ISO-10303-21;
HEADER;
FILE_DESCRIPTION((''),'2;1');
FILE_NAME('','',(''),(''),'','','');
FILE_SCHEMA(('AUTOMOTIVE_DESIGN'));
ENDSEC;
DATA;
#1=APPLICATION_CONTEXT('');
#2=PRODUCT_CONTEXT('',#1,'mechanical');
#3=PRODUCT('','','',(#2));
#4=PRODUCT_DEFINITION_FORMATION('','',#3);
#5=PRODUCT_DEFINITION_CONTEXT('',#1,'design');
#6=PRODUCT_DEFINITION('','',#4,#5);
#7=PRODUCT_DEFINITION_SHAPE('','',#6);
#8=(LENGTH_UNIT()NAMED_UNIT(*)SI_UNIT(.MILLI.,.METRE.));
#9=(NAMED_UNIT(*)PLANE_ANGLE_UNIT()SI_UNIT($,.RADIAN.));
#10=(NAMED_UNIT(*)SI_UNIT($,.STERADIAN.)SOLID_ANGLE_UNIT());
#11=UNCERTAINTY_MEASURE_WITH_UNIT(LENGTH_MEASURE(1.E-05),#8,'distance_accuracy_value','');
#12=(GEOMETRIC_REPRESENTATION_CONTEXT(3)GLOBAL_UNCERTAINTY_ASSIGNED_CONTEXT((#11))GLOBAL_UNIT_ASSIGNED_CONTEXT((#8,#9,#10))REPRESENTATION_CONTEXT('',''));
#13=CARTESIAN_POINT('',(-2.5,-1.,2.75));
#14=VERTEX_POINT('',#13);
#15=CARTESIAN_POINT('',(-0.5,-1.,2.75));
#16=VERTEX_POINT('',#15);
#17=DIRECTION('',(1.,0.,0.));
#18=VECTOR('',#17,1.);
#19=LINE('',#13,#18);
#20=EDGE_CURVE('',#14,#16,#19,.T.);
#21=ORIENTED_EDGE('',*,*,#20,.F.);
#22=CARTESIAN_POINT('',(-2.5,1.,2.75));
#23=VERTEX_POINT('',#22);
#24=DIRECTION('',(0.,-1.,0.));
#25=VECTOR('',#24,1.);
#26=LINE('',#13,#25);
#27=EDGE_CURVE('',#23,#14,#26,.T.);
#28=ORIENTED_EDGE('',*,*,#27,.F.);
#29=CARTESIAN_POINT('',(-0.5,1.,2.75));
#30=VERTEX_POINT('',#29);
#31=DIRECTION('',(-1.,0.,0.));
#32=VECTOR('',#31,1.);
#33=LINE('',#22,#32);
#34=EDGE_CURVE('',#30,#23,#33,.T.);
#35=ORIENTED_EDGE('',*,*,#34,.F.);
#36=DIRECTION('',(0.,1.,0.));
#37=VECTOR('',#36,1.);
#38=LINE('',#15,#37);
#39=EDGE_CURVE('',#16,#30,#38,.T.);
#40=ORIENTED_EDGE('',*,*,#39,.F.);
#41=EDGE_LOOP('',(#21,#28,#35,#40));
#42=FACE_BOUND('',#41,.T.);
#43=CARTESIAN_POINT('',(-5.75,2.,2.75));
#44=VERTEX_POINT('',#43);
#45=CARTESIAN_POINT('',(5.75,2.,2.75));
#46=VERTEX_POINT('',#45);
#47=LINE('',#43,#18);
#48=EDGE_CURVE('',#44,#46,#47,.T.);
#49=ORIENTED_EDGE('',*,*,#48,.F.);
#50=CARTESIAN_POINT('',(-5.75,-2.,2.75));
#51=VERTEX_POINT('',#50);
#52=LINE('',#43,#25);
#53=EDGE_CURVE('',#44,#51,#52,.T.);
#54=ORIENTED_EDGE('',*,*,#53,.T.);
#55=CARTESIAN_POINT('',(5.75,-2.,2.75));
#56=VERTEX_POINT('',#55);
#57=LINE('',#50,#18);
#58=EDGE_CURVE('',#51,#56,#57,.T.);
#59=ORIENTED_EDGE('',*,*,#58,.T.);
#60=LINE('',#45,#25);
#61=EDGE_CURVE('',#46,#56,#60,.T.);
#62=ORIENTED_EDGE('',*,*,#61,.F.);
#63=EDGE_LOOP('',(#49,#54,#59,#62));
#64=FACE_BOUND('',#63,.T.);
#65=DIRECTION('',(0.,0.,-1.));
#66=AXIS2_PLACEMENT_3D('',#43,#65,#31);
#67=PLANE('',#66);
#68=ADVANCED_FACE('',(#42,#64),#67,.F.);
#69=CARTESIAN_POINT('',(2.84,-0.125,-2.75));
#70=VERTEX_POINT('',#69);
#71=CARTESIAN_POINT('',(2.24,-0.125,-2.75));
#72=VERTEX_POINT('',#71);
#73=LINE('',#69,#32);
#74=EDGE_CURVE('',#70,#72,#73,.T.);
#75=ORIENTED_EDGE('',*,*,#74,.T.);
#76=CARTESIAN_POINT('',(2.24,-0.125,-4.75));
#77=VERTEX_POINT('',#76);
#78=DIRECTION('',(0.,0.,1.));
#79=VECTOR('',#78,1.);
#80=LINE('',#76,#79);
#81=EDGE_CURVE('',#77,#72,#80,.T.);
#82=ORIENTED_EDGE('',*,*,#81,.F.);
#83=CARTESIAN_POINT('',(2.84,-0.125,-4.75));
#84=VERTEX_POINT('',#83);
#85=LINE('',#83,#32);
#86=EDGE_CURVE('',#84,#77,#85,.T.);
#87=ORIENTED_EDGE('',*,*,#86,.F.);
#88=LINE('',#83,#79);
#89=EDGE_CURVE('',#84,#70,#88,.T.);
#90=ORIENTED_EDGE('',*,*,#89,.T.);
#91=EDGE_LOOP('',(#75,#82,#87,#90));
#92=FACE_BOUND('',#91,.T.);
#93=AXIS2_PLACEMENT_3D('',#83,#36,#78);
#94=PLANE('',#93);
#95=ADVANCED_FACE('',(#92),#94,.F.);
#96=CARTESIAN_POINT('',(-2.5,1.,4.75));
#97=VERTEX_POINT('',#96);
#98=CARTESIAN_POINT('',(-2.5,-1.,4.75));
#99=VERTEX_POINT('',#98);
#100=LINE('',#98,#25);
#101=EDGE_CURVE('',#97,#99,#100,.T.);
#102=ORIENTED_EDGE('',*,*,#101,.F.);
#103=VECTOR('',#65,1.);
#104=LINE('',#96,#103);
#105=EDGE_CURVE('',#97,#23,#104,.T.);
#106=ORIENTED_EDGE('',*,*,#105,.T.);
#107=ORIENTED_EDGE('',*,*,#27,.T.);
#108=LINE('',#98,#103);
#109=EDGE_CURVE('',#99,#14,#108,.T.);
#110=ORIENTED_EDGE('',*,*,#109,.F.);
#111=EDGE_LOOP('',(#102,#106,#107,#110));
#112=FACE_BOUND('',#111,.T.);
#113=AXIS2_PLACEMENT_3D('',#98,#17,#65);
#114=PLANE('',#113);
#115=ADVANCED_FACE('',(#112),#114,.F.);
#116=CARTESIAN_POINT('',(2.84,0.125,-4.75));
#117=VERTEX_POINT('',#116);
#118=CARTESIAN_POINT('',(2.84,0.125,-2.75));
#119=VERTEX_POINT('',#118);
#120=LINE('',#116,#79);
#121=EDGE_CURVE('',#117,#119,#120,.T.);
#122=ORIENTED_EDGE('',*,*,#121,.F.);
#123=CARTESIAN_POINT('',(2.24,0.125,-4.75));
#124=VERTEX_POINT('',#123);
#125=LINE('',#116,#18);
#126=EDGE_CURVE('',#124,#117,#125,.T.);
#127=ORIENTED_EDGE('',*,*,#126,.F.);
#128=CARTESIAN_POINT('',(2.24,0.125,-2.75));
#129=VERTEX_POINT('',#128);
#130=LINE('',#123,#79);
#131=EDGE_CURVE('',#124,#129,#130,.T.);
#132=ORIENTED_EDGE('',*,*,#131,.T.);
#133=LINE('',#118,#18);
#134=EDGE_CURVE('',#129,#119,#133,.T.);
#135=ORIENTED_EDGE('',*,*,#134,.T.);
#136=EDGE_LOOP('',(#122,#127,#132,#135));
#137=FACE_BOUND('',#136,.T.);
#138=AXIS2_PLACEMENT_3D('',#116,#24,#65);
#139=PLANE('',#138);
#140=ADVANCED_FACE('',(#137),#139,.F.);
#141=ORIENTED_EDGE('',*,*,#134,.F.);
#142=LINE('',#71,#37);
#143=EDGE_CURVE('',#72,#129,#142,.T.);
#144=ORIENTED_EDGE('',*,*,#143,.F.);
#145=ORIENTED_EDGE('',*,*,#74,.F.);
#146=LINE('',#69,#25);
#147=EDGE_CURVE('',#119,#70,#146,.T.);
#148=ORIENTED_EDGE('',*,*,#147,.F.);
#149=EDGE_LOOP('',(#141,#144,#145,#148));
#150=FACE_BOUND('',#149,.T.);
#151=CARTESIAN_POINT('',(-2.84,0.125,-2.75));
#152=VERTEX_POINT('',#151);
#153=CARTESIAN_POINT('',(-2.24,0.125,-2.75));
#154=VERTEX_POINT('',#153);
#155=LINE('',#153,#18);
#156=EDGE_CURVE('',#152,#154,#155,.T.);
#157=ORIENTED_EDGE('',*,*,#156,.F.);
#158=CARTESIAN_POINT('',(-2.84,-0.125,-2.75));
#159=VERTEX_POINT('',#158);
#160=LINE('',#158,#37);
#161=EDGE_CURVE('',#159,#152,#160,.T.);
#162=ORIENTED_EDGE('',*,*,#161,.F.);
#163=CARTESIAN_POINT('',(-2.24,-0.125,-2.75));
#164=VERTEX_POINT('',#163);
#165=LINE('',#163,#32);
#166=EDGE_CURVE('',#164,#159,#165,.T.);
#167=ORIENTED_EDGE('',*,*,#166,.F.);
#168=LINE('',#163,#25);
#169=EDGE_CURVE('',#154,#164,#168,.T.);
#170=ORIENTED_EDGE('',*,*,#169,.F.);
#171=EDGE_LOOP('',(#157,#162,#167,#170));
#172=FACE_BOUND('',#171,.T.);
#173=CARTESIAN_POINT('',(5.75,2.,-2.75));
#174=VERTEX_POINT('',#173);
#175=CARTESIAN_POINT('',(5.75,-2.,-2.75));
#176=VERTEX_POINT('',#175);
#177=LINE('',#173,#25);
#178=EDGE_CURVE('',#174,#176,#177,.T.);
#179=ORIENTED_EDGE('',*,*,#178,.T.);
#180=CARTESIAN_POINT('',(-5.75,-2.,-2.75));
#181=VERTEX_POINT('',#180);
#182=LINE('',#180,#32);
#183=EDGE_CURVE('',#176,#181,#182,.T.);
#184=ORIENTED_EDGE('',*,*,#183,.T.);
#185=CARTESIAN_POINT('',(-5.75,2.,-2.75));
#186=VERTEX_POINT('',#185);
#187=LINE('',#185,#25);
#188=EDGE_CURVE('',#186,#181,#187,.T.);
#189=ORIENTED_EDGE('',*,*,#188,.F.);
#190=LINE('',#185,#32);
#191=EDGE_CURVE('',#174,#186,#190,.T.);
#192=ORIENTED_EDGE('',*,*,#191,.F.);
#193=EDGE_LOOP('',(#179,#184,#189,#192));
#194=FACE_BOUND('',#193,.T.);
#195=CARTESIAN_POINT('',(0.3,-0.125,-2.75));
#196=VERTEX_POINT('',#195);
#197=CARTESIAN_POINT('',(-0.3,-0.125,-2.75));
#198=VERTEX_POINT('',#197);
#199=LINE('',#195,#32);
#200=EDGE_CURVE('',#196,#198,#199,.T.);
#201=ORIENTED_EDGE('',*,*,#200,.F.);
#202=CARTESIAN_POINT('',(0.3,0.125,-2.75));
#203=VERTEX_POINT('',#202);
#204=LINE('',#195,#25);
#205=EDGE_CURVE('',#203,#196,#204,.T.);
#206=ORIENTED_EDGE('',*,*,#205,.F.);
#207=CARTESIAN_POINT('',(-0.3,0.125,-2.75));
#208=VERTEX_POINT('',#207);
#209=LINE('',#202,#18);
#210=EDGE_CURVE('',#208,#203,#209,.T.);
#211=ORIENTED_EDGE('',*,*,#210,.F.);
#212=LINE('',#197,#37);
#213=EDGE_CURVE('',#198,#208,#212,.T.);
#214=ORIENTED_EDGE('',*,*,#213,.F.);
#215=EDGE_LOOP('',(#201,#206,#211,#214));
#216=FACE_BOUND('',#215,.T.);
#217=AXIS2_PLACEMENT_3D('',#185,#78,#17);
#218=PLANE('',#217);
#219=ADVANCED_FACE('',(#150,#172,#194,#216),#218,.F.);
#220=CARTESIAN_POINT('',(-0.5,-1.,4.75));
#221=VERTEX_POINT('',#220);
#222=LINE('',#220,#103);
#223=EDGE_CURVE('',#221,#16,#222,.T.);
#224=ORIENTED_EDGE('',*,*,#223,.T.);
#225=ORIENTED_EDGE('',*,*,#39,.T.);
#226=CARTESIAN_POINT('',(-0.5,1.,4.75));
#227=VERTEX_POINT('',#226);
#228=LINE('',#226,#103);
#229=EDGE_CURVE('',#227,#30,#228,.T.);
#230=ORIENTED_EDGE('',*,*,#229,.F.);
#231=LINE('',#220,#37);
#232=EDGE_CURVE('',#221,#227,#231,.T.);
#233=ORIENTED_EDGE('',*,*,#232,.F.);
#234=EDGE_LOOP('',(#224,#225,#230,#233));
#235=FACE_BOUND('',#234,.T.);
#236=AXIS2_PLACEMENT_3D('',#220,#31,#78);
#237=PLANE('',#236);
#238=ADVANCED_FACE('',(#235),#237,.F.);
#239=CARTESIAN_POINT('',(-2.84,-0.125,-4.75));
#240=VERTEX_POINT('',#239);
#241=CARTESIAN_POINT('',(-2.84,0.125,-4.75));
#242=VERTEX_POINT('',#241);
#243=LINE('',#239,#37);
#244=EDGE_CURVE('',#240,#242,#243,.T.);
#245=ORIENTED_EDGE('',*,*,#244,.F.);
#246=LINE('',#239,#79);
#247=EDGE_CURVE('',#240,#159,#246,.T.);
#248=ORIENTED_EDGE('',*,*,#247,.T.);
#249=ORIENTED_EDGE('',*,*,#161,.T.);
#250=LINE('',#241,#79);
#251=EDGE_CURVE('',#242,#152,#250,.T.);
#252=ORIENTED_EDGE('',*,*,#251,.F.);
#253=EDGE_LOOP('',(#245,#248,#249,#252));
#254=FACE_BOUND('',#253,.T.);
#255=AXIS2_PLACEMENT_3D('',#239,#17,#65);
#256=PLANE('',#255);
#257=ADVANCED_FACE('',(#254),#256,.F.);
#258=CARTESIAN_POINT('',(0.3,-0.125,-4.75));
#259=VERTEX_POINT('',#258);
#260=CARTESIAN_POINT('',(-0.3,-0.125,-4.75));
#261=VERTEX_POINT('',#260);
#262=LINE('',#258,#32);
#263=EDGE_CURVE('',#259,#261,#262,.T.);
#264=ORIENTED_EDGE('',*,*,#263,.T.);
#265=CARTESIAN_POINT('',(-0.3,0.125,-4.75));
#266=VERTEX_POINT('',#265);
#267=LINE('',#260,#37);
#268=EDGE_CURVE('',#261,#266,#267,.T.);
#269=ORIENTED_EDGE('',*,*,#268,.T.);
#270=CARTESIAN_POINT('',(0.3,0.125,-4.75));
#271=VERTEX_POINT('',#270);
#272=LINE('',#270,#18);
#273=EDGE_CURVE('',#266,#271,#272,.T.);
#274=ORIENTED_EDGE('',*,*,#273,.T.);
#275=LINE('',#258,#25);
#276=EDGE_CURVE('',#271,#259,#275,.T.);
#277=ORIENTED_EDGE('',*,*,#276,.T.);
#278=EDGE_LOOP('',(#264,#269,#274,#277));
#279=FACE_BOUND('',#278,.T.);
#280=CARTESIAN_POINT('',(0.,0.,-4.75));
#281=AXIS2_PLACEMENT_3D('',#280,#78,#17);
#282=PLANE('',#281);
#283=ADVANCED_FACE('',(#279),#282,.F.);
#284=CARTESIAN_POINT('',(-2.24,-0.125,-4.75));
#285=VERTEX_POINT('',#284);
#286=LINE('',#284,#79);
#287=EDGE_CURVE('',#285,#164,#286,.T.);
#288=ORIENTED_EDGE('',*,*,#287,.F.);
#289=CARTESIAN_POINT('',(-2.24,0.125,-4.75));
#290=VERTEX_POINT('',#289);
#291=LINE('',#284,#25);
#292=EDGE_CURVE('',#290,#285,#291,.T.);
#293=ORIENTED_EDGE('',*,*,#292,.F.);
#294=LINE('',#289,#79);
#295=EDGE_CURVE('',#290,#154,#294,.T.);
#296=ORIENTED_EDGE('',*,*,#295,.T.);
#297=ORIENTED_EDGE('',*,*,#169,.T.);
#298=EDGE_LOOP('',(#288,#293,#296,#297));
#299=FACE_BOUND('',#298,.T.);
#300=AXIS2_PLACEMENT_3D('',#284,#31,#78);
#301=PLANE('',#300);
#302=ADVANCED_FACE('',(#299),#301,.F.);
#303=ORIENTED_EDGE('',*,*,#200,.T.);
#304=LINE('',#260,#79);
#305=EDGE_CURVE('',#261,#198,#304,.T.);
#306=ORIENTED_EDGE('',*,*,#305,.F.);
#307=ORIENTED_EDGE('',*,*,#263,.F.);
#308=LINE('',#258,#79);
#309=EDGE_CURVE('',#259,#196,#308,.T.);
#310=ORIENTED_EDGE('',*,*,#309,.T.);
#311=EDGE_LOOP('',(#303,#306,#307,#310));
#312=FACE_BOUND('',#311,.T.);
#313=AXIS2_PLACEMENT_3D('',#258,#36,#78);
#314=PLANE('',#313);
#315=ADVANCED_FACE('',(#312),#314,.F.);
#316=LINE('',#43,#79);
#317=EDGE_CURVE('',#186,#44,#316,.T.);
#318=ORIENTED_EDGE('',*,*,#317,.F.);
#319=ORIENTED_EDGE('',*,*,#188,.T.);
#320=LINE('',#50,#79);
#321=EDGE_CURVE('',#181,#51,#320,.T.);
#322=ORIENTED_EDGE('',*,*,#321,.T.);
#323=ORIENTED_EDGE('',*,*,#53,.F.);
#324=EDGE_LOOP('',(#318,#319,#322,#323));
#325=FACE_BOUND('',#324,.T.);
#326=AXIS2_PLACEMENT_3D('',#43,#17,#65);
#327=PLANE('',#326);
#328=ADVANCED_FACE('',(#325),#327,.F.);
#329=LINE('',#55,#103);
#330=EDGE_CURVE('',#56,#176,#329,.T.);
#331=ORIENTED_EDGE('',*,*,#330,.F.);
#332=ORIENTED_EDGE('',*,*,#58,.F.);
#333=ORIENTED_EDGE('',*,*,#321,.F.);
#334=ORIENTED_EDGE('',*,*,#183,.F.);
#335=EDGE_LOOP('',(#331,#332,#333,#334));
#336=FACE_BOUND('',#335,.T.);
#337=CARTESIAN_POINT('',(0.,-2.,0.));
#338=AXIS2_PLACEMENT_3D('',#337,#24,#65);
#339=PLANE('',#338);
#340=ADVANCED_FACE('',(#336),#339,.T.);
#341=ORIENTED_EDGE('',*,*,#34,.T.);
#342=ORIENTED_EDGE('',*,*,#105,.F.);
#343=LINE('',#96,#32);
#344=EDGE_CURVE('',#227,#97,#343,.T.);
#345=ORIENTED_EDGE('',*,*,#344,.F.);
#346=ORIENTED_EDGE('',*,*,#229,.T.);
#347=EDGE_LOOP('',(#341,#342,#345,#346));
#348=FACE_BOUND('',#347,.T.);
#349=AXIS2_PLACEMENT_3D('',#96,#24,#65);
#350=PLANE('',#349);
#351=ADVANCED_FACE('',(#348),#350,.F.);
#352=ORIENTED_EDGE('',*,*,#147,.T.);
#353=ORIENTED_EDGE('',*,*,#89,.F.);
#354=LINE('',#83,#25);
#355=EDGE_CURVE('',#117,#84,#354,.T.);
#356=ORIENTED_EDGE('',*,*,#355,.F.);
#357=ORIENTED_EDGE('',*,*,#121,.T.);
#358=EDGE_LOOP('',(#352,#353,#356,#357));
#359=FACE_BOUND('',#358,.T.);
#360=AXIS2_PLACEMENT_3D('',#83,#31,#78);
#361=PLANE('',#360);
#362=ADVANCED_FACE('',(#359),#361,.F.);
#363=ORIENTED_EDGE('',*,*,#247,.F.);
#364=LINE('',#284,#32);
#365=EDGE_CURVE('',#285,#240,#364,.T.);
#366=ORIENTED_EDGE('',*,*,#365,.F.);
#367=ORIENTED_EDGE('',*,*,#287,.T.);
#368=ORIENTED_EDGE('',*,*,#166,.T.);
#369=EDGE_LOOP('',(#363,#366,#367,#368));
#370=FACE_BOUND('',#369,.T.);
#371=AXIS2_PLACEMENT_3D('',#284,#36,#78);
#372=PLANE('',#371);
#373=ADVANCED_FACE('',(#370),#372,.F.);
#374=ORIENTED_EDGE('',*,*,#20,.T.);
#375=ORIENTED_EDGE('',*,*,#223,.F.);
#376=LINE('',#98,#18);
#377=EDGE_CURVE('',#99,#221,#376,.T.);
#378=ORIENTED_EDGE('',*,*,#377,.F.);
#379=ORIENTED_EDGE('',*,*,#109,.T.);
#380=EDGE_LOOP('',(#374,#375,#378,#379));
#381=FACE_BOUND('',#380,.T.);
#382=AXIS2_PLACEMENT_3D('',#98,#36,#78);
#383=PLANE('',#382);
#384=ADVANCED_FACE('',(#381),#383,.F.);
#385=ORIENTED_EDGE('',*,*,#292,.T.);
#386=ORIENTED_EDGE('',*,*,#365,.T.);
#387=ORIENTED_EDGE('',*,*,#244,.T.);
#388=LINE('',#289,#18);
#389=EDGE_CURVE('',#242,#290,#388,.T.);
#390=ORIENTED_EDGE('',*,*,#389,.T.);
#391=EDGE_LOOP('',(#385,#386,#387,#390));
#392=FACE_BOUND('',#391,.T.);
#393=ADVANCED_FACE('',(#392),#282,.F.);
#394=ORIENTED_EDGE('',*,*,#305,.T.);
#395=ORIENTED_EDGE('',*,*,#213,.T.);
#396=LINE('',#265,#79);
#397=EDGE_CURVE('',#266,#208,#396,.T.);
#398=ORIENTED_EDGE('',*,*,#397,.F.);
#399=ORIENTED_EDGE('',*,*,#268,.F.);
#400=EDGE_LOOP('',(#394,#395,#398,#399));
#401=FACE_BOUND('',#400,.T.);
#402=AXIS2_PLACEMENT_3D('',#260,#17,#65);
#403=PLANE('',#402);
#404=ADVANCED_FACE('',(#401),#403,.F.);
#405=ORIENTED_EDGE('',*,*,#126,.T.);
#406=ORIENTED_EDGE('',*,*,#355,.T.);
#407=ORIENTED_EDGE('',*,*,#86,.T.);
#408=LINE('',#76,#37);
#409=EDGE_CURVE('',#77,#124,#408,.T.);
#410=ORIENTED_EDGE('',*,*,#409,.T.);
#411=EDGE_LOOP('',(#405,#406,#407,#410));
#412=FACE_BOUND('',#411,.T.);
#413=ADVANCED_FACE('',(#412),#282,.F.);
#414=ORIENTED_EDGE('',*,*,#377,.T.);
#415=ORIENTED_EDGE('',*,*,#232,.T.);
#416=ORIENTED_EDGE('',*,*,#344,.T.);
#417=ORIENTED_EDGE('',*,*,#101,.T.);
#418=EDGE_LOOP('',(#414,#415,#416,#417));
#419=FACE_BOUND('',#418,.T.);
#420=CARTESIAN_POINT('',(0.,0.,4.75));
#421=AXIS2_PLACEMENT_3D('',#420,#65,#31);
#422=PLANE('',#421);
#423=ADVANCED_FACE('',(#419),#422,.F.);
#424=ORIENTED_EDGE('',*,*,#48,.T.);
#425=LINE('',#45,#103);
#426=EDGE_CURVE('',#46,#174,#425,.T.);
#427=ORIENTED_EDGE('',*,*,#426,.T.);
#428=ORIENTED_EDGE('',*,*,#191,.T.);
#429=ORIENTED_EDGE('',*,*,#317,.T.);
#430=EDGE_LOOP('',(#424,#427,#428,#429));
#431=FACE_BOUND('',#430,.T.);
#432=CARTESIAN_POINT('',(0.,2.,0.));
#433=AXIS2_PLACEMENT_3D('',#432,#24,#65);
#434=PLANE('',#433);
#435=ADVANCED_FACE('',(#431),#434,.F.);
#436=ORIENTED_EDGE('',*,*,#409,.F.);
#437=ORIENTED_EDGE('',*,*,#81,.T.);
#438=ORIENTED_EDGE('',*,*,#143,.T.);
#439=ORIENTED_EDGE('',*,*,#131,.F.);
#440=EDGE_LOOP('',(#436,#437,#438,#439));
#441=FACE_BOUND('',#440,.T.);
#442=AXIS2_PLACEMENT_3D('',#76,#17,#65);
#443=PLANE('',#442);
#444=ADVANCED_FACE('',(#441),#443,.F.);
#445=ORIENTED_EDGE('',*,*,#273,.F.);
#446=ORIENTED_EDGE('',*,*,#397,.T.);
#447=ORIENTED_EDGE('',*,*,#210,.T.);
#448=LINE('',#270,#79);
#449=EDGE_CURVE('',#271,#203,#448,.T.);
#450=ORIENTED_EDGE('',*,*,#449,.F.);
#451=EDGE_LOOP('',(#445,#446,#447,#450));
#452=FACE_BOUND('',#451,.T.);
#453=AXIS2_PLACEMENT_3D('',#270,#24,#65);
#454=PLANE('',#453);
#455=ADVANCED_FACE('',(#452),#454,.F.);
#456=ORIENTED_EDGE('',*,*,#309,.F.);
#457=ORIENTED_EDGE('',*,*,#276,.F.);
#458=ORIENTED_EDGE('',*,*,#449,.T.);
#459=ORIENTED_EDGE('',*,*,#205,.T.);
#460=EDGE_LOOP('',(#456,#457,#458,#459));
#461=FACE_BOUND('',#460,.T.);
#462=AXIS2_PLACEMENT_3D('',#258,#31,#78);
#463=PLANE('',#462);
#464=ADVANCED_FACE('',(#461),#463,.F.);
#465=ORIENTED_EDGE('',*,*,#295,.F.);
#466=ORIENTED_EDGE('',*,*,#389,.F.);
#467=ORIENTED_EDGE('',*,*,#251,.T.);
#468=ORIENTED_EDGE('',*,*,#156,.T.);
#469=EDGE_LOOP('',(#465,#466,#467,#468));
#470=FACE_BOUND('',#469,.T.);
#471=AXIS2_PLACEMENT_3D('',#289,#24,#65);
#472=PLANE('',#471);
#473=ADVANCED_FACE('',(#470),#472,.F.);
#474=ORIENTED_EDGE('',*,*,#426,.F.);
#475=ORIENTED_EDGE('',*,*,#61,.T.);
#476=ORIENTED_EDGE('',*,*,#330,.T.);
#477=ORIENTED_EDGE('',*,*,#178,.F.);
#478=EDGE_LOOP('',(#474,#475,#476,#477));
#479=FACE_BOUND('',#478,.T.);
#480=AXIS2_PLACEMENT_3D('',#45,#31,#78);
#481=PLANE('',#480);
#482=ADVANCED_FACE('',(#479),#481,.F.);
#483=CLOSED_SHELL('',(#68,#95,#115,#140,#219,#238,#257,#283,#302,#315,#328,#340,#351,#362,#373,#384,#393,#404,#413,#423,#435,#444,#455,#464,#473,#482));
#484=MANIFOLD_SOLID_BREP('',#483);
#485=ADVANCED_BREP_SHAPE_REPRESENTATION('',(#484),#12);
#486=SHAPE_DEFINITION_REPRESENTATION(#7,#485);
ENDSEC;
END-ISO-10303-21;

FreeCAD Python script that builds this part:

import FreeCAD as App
import Part
import Sketcher


def add_polygon(sketch, points):
    """Adds a closed chain of lines whose ends are joined by coincident constraints."""
    first, n = sketch.GeometryCount, len(points)
    for a, b in zip(points, points[1:] + points[:1]):
        sketch.addGeometry(Part.LineSegment(App.Vector(*a, 0), App.Vector(*b, 0)), False)
    for i in range(n):
        sketch.addConstraint(Sketcher.Constraint("Coincident", first + i, 2, first + (i + 1) % n, 1))

doc = App.newDocument("Part")
body = doc.addObject("PartDesign::Body", "Body")

sketch1 = doc.addObject("Sketcher::SketchObject", "Sketch")
body.addObject(sketch1)
sketch1.AttachmentSupport = (doc.XZ_Plane, [""])
sketch1.MapMode = "FlatFace"
add_polygon(sketch1, [(-5.75, -2.75), (-5.75, 2.75), (5.75, 2.75), (5.75, -2.75)])
sketch1.addConstraint([
    Sketcher.Constraint("Vertical", 0),
    Sketcher.Constraint("Horizontal", 1),
    Sketcher.Constraint("Vertical", 2),
    Sketcher.Constraint("Horizontal", 3),
    Sketcher.Constraint("Symmetric", 0, 2, 2, 2, -1, 1),
    Sketcher.Constraint("DistanceX", 1, 1, 1, 2, 11.5),
    Sketcher.Constraint("DistanceY", 0, 1, 0, 2, 5.5),
])
pad1 = doc.addObject("PartDesign::Pad", "Pad")
body.addObject(pad1)
pad1.Profile = sketch1
pad1.Length = 4
pad1.Midplane = True

sketch2 = doc.addObject("Sketcher::SketchObject", "Sketch001")
body.addObject(sketch2)
sketch2.AttachmentSupport = (doc.XY_Plane, [""])
sketch2.MapMode = "FlatFace"
sketch2.AttachmentOffset = App.Placement(App.Vector(0, 0, 2.75), App.Rotation())
add_polygon(sketch2, [(-2.5, 1), (-2.5, -1), (-0.5, -1), (-0.5, 1)])
sketch2.addConstraint([
    Sketcher.Constraint("Vertical", 0),
    Sketcher.Constraint("Horizontal", 1),
    Sketcher.Constraint("Vertical", 2),
    Sketcher.Constraint("Horizontal", 3),
    Sketcher.Constraint("Equal", 3, 0),
    Sketcher.Constraint("DistanceX", 1, 1, 1, 2, 2.0),
    Sketcher.Constraint("DistanceY", 0, 2, -1, 1, 1.0),
    Sketcher.Constraint("DistanceX", 0, 2, -1, 1, 2.5),
])
pad2 = doc.addObject("PartDesign::Pad", "Pad001")
body.addObject(pad2)
pad2.Profile = sketch2
pad2.Length = 2

sketch3 = doc.addObject("Sketcher::SketchObject", "Sketch002")
body.addObject(sketch3)
sketch3.AttachmentSupport = (doc.XY_Plane, [""])
sketch3.MapMode = "FlatFace"
sketch3.AttachmentOffset = App.Placement(App.Vector(0, 0, -2.75), App.Rotation())
add_polygon(sketch3, [(2.84, 0.125), (2.84, -0.125), (2.24, -0.125), (2.24, 0.125)])
add_polygon(sketch3, [(0.3, 0.125), (0.3, -0.125), (-0.3, -0.125), (-0.3, 0.125)])
add_polygon(sketch3, [(-2.24, 0.125), (-2.24, -0.125), (-2.84, -0.125), (-2.84, 0.125)])
sketch3.addConstraint([
    Sketcher.Constraint("Vertical", 0),
    Sketcher.Constraint("Horizontal", 1),
    Sketcher.Constraint("Vertical", 2),
    Sketcher.Constraint("Horizontal", 3),
    Sketcher.Constraint("Vertical", 4),
    Sketcher.Constraint("Horizontal", 5),
    Sketcher.Constraint("Vertical", 6),
    Sketcher.Constraint("Horizontal", 7),
    Sketcher.Constraint("Vertical", 8),
    Sketcher.Constraint("Horizontal", 9),
    Sketcher.Constraint("Vertical", 10),
    Sketcher.Constraint("Horizontal", 11),
    Sketcher.Constraint("Symmetric", 4, 2, 6, 2, -1, 1),
    Sketcher.Constraint("Symmetric", 2, 2, 8, 2, -1, 1),
    Sketcher.Constraint("Symmetric", 0, 2, 10, 2, -1, 1),
    Sketcher.Constraint("Horizontal", 1, 2, 4, 2),
    Sketcher.Constraint("Horizontal", 3, 2, 6, 2),
    Sketcher.Constraint("Equal", 3, 5),
    Sketcher.Constraint("DistanceX", 1, 2, 1, 1, 0.6),
    Sketcher.Constraint("DistanceY", 0, 2, 0, 1, 0.25),
    Sketcher.Constraint("DistanceX", -1, 1, 0, 2, 2.84),
])
pad3 = doc.addObject("PartDesign::Pad", "Pad002")
body.addObject(pad3)
pad3.Profile = sketch3
pad3.Length = 2
pad3.Reversed = True

doc.recompute()
